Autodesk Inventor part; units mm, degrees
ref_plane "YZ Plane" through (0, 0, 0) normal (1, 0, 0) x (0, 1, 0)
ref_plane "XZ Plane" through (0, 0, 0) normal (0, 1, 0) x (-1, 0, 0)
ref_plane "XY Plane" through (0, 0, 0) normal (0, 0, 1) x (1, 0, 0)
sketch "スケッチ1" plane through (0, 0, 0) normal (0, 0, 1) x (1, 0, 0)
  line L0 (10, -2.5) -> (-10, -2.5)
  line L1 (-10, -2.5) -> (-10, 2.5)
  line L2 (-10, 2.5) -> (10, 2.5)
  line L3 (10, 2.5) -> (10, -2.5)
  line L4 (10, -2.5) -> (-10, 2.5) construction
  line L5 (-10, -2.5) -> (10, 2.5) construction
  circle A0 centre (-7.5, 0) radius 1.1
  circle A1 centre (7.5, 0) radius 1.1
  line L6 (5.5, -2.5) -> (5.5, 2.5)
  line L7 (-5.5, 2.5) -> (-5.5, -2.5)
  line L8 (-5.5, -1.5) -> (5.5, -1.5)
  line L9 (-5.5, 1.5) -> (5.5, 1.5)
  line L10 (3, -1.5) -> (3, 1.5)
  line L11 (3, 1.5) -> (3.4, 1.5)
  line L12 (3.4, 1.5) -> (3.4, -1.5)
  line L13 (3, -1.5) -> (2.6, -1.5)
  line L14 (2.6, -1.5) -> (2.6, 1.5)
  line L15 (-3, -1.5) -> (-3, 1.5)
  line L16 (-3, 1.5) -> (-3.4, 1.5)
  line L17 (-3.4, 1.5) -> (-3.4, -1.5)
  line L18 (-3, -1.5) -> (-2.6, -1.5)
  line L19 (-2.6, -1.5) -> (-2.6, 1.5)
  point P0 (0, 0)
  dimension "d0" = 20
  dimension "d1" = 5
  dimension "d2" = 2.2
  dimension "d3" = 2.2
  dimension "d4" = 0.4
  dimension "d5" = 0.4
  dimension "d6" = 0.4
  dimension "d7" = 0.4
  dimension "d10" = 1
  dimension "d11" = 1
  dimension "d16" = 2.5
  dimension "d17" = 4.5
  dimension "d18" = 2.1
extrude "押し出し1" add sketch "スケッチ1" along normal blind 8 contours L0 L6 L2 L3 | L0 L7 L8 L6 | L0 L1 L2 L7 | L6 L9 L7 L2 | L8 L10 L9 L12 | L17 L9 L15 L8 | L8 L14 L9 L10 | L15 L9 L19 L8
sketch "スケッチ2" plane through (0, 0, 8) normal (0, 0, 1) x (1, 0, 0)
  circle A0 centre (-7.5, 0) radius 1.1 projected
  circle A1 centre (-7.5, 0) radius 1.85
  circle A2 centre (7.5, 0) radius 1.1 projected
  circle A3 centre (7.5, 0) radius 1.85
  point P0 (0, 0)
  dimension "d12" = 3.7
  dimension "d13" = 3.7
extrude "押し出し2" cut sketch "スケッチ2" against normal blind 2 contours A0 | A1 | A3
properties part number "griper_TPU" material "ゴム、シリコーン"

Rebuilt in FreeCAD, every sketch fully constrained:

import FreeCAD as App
import Part
import Sketcher
from FreeCAD import Vector


def add_polygon(sketch, points):
    """Adds a closed chain of lines whose ends are joined by coincident constraints."""
    first, n = sketch.GeometryCount, len(points)
    for a, b in zip(points, points[1:] + points[:1]):
        sketch.addGeometry(Part.LineSegment(App.Vector(*a, 0), App.Vector(*b, 0)), False)
    for i in range(n):
        sketch.addConstraint(Sketcher.Constraint("Coincident", first + i, 2, first + (i + 1) % n, 1))

doc = App.newDocument("Part")
body = doc.addObject("PartDesign::Body", "Body")

sketch1 = doc.addObject("Sketcher::SketchObject", "Sketch")
body.addObject(sketch1)
sketch1.AttachmentSupport = (doc.XY_Plane, [""])
sketch1.MapMode = "FlatFace"
add_polygon(sketch1, [(10, -2.5), (10, 2.5), (-10, 2.5), (-10, -2.5)])
add_polygon(sketch1, [(5.5, 1.5), (5.5, -1.5), (3.4, -1.5), (3.4, 1.5)])
sketch1.addGeometry(Part.Circle(Vector(7.5, 0, 0), Vector(0, 0, 1), 1.1), False)
add_polygon(sketch1, [(-3.4, -1.5), (-5.5, -1.5), (-5.5, 1.5), (-3.4, 1.5)])
add_polygon(sketch1, [(2.6, -1.5), (-2.6, -1.5), (-2.6, 1.5), (2.6, 1.5)])
sketch1.addGeometry(Part.Circle(Vector(-7.5, 0, 0), Vector(0, 0, 1), 1.1), False)
sketch1.addConstraint(Sketcher.Constraint("Vertical", 0))
sketch1.addConstraint(Sketcher.Constraint("Horizontal", 1))
sketch1.addConstraint(Sketcher.Constraint("Vertical", 2))
sketch1.addConstraint(Sketcher.Constraint("Horizontal", 3))
sketch1.addConstraint(Sketcher.Constraint("Vertical", 4))
sketch1.addConstraint(Sketcher.Constraint("Horizontal", 5))
sketch1.addConstraint(Sketcher.Constraint("Vertical", 6))
sketch1.addConstraint(Sketcher.Constraint("Horizontal", 7))
sketch1.addConstraint(Sketcher.Constraint("Horizontal", 9))
sketch1.addConstraint(Sketcher.Constraint("Vertical", 10))
sketch1.addConstraint(Sketcher.Constraint("Horizontal", 11))
sketch1.addConstraint(Sketcher.Constraint("Vertical", 12))
sketch1.addConstraint(Sketcher.Constraint("Horizontal", 13))
sketch1.addConstraint(Sketcher.Constraint("Vertical", 14))
sketch1.addConstraint(Sketcher.Constraint("Horizontal", 15))
sketch1.addConstraint(Sketcher.Constraint("Vertical", 16))
sketch1.addConstraint(Sketcher.Constraint("Equal", 8, 17))
sketch1.addConstraint(Sketcher.Constraint("Symmetric", 8, 3, 17, 3, -1, 1))
sketch1.addConstraint(Sketcher.Constraint("Symmetric", 0, 2, 2, 2, -1, 1))
sketch1.addConstraint(Sketcher.Constraint("Symmetric", 7, 2, 9, 2, -1, 1))
sketch1.addConstraint(Sketcher.Constraint("Symmetric", 5, 2, 11, 2, -1, 1))
sketch1.addConstraint(Sketcher.Constraint("Symmetric", 13, 2, 15, 2, -1, 1))
sketch1.addConstraint(Sketcher.Constraint("PointOnObject", 8, 3, -1))
sketch1.addConstraint(Sketcher.Constraint("Horizontal", 5, 2, 9, 2))
sketch1.addConstraint(Sketcher.Constraint("Horizontal", 12, 2, 13, 2))
sketch1.addConstraint(Sketcher.Constraint("Diameter", 8, 2.2))
sketch1.addConstraint(Sketcher.Constraint("DistanceX", 1, 2, 1, 1, 20.0))
sketch1.addConstraint(Sketcher.Constraint("DistanceY", 0, 1, 0, 2, 5.0))
sketch1.addConstraint(Sketcher.Constraint("DistanceX", 5, 2, 5, 1, 2.1))
sketch1.addConstraint(Sketcher.Constraint("DistanceY", 3, 2, 4, 2, 1.0))
sketch1.addConstraint(Sketcher.Constraint("DistanceX", 8, 3, 0, 2, 2.5))
sketch1.addConstraint(Sketcher.Constraint("DistanceX", 4, 2, 3, 2, 4.5))
sketch1.addConstraint(Sketcher.Constraint("DistanceX", 13, 2, 13, 1, 5.2))
pad1 = doc.addObject("PartDesign::Pad", "Pad")
body.addObject(pad1)
pad1.Profile = sketch1
pad1.Length = 8

sketch2 = doc.addObject("Sketcher::SketchObject", "Sketch001")
body.addObject(sketch2)
sketch2.AttachmentSupport = (doc.XY_Plane, [""])
sketch2.MapMode = "FlatFace"
sketch2.AttachmentOffset = App.Placement(Vector(0, 0, 8), App.Rotation())
sketch2.addGeometry(Part.Circle(Vector(-7.5, 0, 0), Vector(0, 0, 1), 1.9), False)
sketch2.addGeometry(Part.Circle(Vector(7.5, 0, 0), Vector(0, 0, 1), 1.9), False)
sketch2.addGeometry(Part.Circle(Vector(7.5, 0, 0), Vector(0, 0, 1), 1.1), False)
sketch2.addConstraint(Sketcher.Constraint("Coincident", 2, 3, 1, 3))
sketch2.addConstraint(Sketcher.Constraint("Equal", 0, 1))
sketch2.addConstraint(Sketcher.Constraint("Symmetric", 0, 3, 1, 3, -1, 1))
sketch2.addConstraint(Sketcher.Constraint("PointOnObject", 0, 3, -1))
sketch2.addConstraint(Sketcher.Constraint("Diameter", 0, 3.7))
sketch2.addConstraint(Sketcher.Constraint("Diameter", 2, 2.2))
sketch2.addConstraint(Sketcher.Constraint("DistanceX", 0, 3, 1, 3, 15.0))
pocket1 = doc.addObject("PartDesign::Pocket", "Pocket")
body.addObject(pocket1)
pocket1.Profile = sketch2
pocket1.Length = 2

doc.recompute()
